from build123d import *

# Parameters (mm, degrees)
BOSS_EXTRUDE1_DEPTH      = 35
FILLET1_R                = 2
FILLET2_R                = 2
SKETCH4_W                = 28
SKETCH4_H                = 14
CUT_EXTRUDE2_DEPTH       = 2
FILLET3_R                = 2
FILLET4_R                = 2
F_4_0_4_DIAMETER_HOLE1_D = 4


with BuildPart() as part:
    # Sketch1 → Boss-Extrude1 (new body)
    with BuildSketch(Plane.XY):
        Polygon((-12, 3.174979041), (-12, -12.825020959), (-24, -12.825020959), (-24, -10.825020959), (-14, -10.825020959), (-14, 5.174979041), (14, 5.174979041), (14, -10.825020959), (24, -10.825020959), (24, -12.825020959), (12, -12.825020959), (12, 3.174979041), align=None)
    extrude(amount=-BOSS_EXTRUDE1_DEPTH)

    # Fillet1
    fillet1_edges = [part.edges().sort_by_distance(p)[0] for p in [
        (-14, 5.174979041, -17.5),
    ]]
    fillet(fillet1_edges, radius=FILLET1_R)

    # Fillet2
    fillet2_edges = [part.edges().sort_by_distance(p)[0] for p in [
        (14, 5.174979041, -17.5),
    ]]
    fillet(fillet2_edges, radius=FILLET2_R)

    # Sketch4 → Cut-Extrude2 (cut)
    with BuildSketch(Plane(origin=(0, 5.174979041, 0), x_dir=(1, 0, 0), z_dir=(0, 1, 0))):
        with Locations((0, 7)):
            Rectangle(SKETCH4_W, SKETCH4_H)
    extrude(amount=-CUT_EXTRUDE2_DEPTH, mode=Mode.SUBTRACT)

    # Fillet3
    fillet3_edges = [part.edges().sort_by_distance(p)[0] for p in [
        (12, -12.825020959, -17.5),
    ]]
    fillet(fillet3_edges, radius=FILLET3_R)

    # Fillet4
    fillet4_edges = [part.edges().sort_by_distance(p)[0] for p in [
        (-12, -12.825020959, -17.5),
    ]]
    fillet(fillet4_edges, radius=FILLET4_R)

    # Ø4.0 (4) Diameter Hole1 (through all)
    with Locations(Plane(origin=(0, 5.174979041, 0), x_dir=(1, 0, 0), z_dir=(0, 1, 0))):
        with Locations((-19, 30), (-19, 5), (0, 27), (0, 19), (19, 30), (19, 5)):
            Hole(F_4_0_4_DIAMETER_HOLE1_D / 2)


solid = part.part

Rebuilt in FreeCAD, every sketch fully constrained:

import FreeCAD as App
import Part
import Sketcher

V = App.Vector
Q = App.Units.Quantity


def edges_at(feature, points):
    """Names of the edges that pass closest to the given points."""
    edges = feature.Shape.Edges
    near = lambda p: min(range(len(edges)), key=lambda i: edges[i].distToShape(Part.Vertex(*p))[0])
    return sorted({f"Edge{near(p) + 1}" for p in points})


def add_polygon(sketch, points):
    """Adds a closed chain of lines whose ends are joined by coincident constraints."""
    first, n = sketch.GeometryCount, len(points)
    for a, b in zip(points, points[1:] + points[:1]):
        sketch.addGeometry(Part.LineSegment(App.Vector(*a, 0), App.Vector(*b, 0)), False)
    for i in range(n):
        sketch.addConstraint(Sketcher.Constraint("Coincident", first + i, 2, first + (i + 1) % n, 1))

doc = App.newDocument("Part")
body = doc.addObject("PartDesign::Body", "Body")

# Sketch on XY plane
sketch1 = doc.addObject("Sketcher::SketchObject", "Sketch")
body.addObject(sketch1)
sketch1.AttachmentSupport = (doc.XY_Plane, [""])
sketch1.MapMode = "FlatFace"
add_polygon(sketch1, [(-12, -12.8), (-12, 3.2), (12, 3.2), (12, -12.8), (24, -12.8), (24, -10.8), (14, -10.8), (14, 5.2), (-14, 5.2), (-14, -10.8), (-24, -10.8), (-24, -12.8)])  # lines 0-11
sketch1.addConstraint(Sketcher.Constraint("Vertical", 0))
sketch1.addConstraint(Sketcher.Constraint("Horizontal", 1))
sketch1.addConstraint(Sketcher.Constraint("Vertical", 2))
sketch1.addConstraint(Sketcher.Constraint("Horizontal", 3))
sketch1.addConstraint(Sketcher.Constraint("Vertical", 4))
sketch1.addConstraint(Sketcher.Constraint("Horizontal", 5))
sketch1.addConstraint(Sketcher.Constraint("Vertical", 6))
sketch1.addConstraint(Sketcher.Constraint("Horizontal", 7))
sketch1.addConstraint(Sketcher.Constraint("Vertical", 8))
sketch1.addConstraint(Sketcher.Constraint("Horizontal", 9))
sketch1.addConstraint(Sketcher.Constraint("Vertical", 10))
sketch1.addConstraint(Sketcher.Constraint("Horizontal", 11))
sketch1.addConstraint(Sketcher.Constraint("Symmetric", 5, 2, 8, 2, -2))
sketch1.addConstraint(Sketcher.Constraint("Symmetric", 3, 2, 10, 2, -2))
sketch1.addConstraint(Sketcher.Constraint("Equal", 3, 11))
sketch1.addConstraint(Sketcher.Constraint("Equal", 2, 6))
sketch1.addConstraint(Sketcher.Constraint("DistanceX", 1, 1, 1, 2, Q("24 mm")))
sketch1.addConstraint(Sketcher.Constraint("DistanceX", 3, 1, 3, 2, Q("12 mm")))
sketch1.addConstraint(Sketcher.Constraint("DistanceX", 5, 2, 5, 1, Q("10 mm")))
sketch1.addConstraint(Sketcher.Constraint("DistanceY", 0, 1, 0, 2, Q("16 mm")))
sketch1.addConstraint(Sketcher.Constraint("DistanceY", 4, 1, 4, 2, Q("2 mm")))
sketch1.addConstraint(Sketcher.Constraint("DistanceY", -1, 1, 0, 2, Q("3.174979 mm")))
pad1 = doc.addObject("PartDesign::Pad", "Pad")
body.addObject(pad1)
pad1.Profile = sketch1
pad1.Length = 35
pad1.Reversed = True
doc.recompute()

fillet = doc.addObject("PartDesign::Fillet", "Fillet")
body.addObject(fillet)
fillet.Base = (pad1, edges_at(pad1, [(-14, 5.175, -17.5)]))
fillet.Radius = 2
doc.recompute()

fillet2 = doc.addObject("PartDesign::Fillet", "Fillet001")
body.addObject(fillet2)
fillet2.Base = (fillet, edges_at(fillet, [(14, 5.175, -17.5)]))
fillet2.Radius = 2

# Sketch on XZ plane
sketch2 = doc.addObject("Sketcher::SketchObject", "Sketch001")
body.addObject(sketch2)
sketch2.AttachmentSupport = (doc.XZ_Plane, [""])
sketch2.MapMode = "FlatFace"
sketch2.AttachmentOffset = App.Placement(V(0, 0, -5.174979), App.Rotation())
add_polygon(sketch2, [(-14, -14), (-14, 0), (14, 0), (14, -14)])  # lines 0-3
sketch2.addConstraint(Sketcher.Constraint("Vertical", 0))
sketch2.addConstraint(Sketcher.Constraint("Horizontal", 1))
sketch2.addConstraint(Sketcher.Constraint("Vertical", 2))
sketch2.addConstraint(Sketcher.Constraint("Horizontal", 3))
sketch2.addConstraint(Sketcher.Constraint("Symmetric", 0, 2, 1, 2, -1, 1))
sketch2.addConstraint(Sketcher.Constraint("DistanceX", 1, 1, 1, 2, Q("28 mm")))
sketch2.addConstraint(Sketcher.Constraint("DistanceY", 0, 1, 0, 2, Q("14 mm")))
pocket1 = doc.addObject("PartDesign::Pocket", "Pocket")
body.addObject(pocket1)
pocket1.Profile = sketch2
pocket1.Length = 2
pocket1.Reversed = True
doc.recompute()

fillet3 = doc.addObject("PartDesign::Fillet", "Fillet002")
body.addObject(fillet3)
fillet3.Base = (pocket1, edges_at(pocket1, [(12, -12.825, -17.5)]))
fillet3.Radius = 2
doc.recompute()

fillet4 = doc.addObject("PartDesign::Fillet", "Fillet003")
body.addObject(fillet4)
fillet4.Base = (fillet3, edges_at(fillet3, [(-12, -12.825, -17.5)]))
fillet4.Radius = 2

# Sketch on XZ plane
sketch3 = doc.addObject("Sketcher::SketchObject", "Sketch002")
body.addObject(sketch3)
sketch3.AttachmentSupport = (doc.XZ_Plane, [""])
sketch3.MapMode = "FlatFace"
sketch3.AttachmentOffset = App.Placement(V(0, 0, -5.174979), App.Rotation())
sketch3.addGeometry(Part.Circle(V(-19, -30, 0), V(0, 0, 1), 2), False)
sketch3.addGeometry(Part.Circle(V(-19, -5, 0), V(0, 0, 1), 2), False)
sketch3.addGeometry(Part.Circle(V(0, -27, 0), V(0, 0, 1), 2), False)
sketch3.addGeometry(Part.Circle(V(0, -19, 0), V(0, 0, 1), 2), False)
sketch3.addGeometry(Part.Circle(V(19, -30, 0), V(0, 0, 1), 2), False)
sketch3.addGeometry(Part.Circle(V(19, -5, 0), V(0, 0, 1), 2), False)
sketch3.addConstraint(Sketcher.Constraint("Equal", 0, 1))
sketch3.addConstraint(Sketcher.Constraint("Equal", 1, 2))
sketch3.addConstraint(Sketcher.Constraint("Equal", 2, 3))
sketch3.addConstraint(Sketcher.Constraint("Equal", 3, 4))
sketch3.addConstraint(Sketcher.Constraint("Equal", 4, 5))
sketch3.addConstraint(Sketcher.Constraint("Symmetric", 0, 3, 4, 3, -2))
sketch3.addConstraint(Sketcher.Constraint("Symmetric", 1, 3, 5, 3, -2))
sketch3.addConstraint(Sketcher.Constraint("PointOnObject", 2, 3, -2))
sketch3.addConstraint(Sketcher.Constraint("PointOnObject", 3, 3, -2))
sketch3.addConstraint(Sketcher.Constraint("Vertical", 0, 3, 1, 3))
sketch3.addConstraint(Sketcher.Constraint("Diameter", 0, Q("4 mm")))
sketch3.addConstraint(Sketcher.Constraint("DistanceX", 0, 3, -1, 1, Q("19 mm")))
sketch3.addConstraint(Sketcher.Constraint("DistanceY", 0, 3, -1, 1, Q("30 mm")))
sketch3.addConstraint(Sketcher.Constraint("DistanceY", 1, 3, -1, 1, Q("5 mm")))
sketch3.addConstraint(Sketcher.Constraint("DistanceY", 2, 3, -1, 1, Q("27 mm")))
sketch3.addConstraint(Sketcher.Constraint("DistanceY", 3, 3, -1, 1, Q("19 mm")))
doc.recompute()
hole = doc.addObject("PartDesign::Hole", "Hole")
body.addObject(hole)
hole.Profile = sketch3
hole.ThreadType = "None"
hole.Diameter = 4
hole.DepthType = "ThroughAll"
hole.Reversed = True

doc.recompute()
